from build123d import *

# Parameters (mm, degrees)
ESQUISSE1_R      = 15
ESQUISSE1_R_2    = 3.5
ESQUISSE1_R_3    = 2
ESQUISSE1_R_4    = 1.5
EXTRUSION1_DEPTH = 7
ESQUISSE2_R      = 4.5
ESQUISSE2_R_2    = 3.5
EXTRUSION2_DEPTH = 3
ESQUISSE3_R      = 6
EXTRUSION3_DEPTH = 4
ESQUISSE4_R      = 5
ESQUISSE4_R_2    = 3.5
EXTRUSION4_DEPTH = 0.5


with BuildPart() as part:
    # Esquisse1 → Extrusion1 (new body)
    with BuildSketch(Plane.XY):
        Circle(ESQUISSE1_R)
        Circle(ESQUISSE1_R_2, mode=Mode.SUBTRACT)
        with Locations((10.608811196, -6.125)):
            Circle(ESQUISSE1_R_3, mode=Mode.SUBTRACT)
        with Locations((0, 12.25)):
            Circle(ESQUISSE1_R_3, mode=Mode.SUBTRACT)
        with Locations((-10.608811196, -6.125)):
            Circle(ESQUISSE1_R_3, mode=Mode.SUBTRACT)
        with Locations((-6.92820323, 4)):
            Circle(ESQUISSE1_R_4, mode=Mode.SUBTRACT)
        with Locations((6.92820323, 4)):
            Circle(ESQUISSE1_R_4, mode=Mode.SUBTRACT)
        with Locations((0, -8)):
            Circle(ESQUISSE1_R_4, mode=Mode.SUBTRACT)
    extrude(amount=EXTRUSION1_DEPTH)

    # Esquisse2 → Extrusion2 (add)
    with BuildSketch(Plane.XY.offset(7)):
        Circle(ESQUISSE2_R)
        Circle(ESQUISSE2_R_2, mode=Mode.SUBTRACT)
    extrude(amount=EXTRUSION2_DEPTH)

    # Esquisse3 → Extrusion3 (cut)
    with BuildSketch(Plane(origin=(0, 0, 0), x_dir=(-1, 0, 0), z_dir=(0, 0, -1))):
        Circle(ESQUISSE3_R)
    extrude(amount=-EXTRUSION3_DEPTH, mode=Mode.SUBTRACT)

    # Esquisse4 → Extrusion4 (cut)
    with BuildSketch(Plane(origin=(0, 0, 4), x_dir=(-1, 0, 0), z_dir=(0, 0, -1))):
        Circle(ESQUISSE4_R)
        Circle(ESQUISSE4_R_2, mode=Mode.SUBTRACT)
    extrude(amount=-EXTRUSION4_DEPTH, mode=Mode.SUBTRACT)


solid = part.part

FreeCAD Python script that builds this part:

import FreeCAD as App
import Part
import Sketcher
from FreeCAD import Vector

doc = App.newDocument("Part")
params = doc.addObject("Spreadsheet::Sheet", "Params")
for row, (alias, value) in enumerate([
    ("sketch1_diameter", "30 mm"),
    ("sketch1_diameter2", "4 mm"),
    ("sketch1_diameter3", "3 mm"),
    ("sketch1_diameter4", "7 mm"),
    ("pad1_length", "7 mm"),
    ("sketch2_diameter", "9 mm"),
    ("sketch2_diameter2", "7 mm"),
    ("pad2_length", "3 mm"),
    ("sketch3_diameter", "12 mm"),
    ("pocket1_length", "4 mm"),
    ("sketch4_diameter", "10 mm"),
    ("sketch4_diameter2", "7 mm"),
    ("pocket2_length", "0.5 mm"),
], start=1):
    params.set(f"A{row}", alias)
    params.set(f"B{row}", "=" + value)
    params.setAlias(f"B{row}", alias)

body = doc.addObject("PartDesign::Body", "Body")

# Sketch on XY plane
sketch1 = doc.addObject("Sketcher::SketchObject", "Sketch")
body.addObject(sketch1)
sketch1.AttachmentSupport = (doc.XY_Plane, [""])
sketch1.MapMode = "FlatFace"
sketch1.addGeometry([
    Part.Circle(Vector(0, 0, 0), Vector(0, 0, 1), 15),  # 0
    Part.Circle(Vector(-10.6, -6.1, 0), Vector(0, 0, 1), 2),  # 1
    Part.Circle(Vector(0, -8, 0), Vector(0, 0, 1), 1.5),  # 2
    Part.Circle(Vector(10.6, -6.1, 0), Vector(0, 0, 1), 2),  # 3
    Part.Circle(Vector(0, 0, 0), Vector(0, 0, 1), 3.5),  # 4
    Part.Circle(Vector(-6.9, 4, 0), Vector(0, 0, 1), 1.5),  # 5
    Part.Circle(Vector(6.9, 4, 0), Vector(0, 0, 1), 1.5),  # 6
    Part.Circle(Vector(0, 12.2, 0), Vector(0, 0, 1), 2),  # 7
], False)
sketch1.addConstraint([
    Sketcher.Constraint("Coincident", 0, 3, -1, 1),
    Sketcher.Constraint("Coincident", 4, 3, -1, 1),
    Sketcher.Constraint("Equal", 1, 3),
    Sketcher.Constraint("Equal", 2, 5),
    Sketcher.Constraint("Equal", 5, 6),
    Sketcher.Constraint("Equal", 3, 7),
    Sketcher.Constraint("Symmetric", 1, 3, 3, 3, -2),
    Sketcher.Constraint("Symmetric", 5, 3, 6, 3, -2),
    Sketcher.Constraint("PointOnObject", 2, 3, -2),
    Sketcher.Constraint("PointOnObject", 7, 3, -2),
    Sketcher.Constraint("Diameter", 0, 30.0),
    Sketcher.Constraint("Diameter", 1, 4.0),
    Sketcher.Constraint("Diameter", 2, 3.0),
    Sketcher.Constraint("Diameter", 4, 7.0),
    Sketcher.Constraint("DistanceY", 2, 3, -1, 1, 8.0),
    Sketcher.Constraint("DistanceY", -1, 1, 5, 3, 4.0),
    Sketcher.Constraint("DistanceY", -1, 1, 7, 3, 12.25),
    Sketcher.Constraint("DistanceY", 1, 3, -1, 1, 6.125),
    Sketcher.Constraint("DistanceX", 1, 3, -1, 1, 10.608811),
    Sketcher.Constraint("DistanceX", 5, 3, -1, 1, 6.928203),
])
sketch1.setExpression("Constraints[10]", "Params.sketch1_diameter")
sketch1.setExpression("Constraints[11]", "Params.sketch1_diameter2")
sketch1.setExpression("Constraints[12]", "Params.sketch1_diameter3")
sketch1.setExpression("Constraints[13]", "Params.sketch1_diameter4")
pad1 = doc.addObject("PartDesign::Pad", "Pad")
body.addObject(pad1)
pad1.Profile = sketch1
pad1.setExpression("Length", "Params.pad1_length")

# Sketch on XY plane
sketch2 = doc.addObject("Sketcher::SketchObject", "Sketch001")
body.addObject(sketch2)
sketch2.AttachmentSupport = (doc.XY_Plane, [""])
sketch2.MapMode = "FlatFace"
sketch2.AttachmentOffset = App.Placement(Vector(0, 0, 7), App.Rotation())
sketch2.addGeometry([
    Part.Circle(Vector(0, 0, 0), Vector(0, 0, 1), 4.5),
    Part.Circle(Vector(0, 0, 0), Vector(0, 0, 1), 3.5),
], False)
sketch2.addConstraint([
    Sketcher.Constraint("Coincident", 0, 3, -1, 1),
    Sketcher.Constraint("Coincident", 1, 3, -1, 1),
    Sketcher.Constraint("Diameter", 0, 9.0),
    Sketcher.Constraint("Diameter", 1, 7.0),
])
sketch2.setExpression("Constraints[2]", "Params.sketch2_diameter")
sketch2.setExpression("Constraints[3]", "Params.sketch2_diameter2")
pad2 = doc.addObject("PartDesign::Pad", "Pad001")
body.addObject(pad2)
pad2.Profile = sketch2
pad2.setExpression("Length", "Params.pad2_length")

# Sketch on XY plane
sketch3 = doc.addObject("Sketcher::SketchObject", "Sketch002")
body.addObject(sketch3)
sketch3.AttachmentSupport = (doc.XY_Plane, [""])
sketch3.MapMode = "FlatFace"
sketch3.addGeometry(Part.Circle(Vector(0, 0, 0), Vector(0, 0, 1), 6), False)
sketch3.addConstraint([
    Sketcher.Constraint("Coincident", 0, 3, -1, 1),
    Sketcher.Constraint("Diameter", 0, 12.0),
])
sketch3.setExpression("Constraints[1]", "Params.sketch3_diameter")
pocket1 = doc.addObject("PartDesign::Pocket", "Pocket")
body.addObject(pocket1)
pocket1.Profile = sketch3
pocket1.setExpression("Length", "Params.pocket1_length")
pocket1.Reversed = True

# Sketch on XY plane
sketch4 = doc.addObject("Sketcher::SketchObject", "Sketch003")
body.addObject(sketch4)
sketch4.AttachmentSupport = (doc.XY_Plane, [""])
sketch4.MapMode = "FlatFace"
sketch4.AttachmentOffset = App.Placement(Vector(0, 0, 4), App.Rotation())
sketch4.addGeometry([
    Part.Circle(Vector(0, 0, 0), Vector(0, 0, 1), 5),
    Part.Circle(Vector(0, 0, 0), Vector(0, 0, 1), 3.5),
], False)
sketch4.addConstraint([
    Sketcher.Constraint("Coincident", 0, 3, -1, 1),
    Sketcher.Constraint("Coincident", 1, 3, -1, 1),
    Sketcher.Constraint("Diameter", 0, 10.0),
    Sketcher.Constraint("Diameter", 1, 7.0),
])
sketch4.setExpression("Constraints[2]", "Params.sketch4_diameter")
sketch4.setExpression("Constraints[3]", "Params.sketch4_diameter2")
pocket2 = doc.addObject("PartDesign::Pocket", "Pocket001")
body.addObject(pocket2)
pocket2.Profile = sketch4
pocket2.setExpression("Length", "Params.pocket2_length")
pocket2.Reversed = True

doc.recompute()
